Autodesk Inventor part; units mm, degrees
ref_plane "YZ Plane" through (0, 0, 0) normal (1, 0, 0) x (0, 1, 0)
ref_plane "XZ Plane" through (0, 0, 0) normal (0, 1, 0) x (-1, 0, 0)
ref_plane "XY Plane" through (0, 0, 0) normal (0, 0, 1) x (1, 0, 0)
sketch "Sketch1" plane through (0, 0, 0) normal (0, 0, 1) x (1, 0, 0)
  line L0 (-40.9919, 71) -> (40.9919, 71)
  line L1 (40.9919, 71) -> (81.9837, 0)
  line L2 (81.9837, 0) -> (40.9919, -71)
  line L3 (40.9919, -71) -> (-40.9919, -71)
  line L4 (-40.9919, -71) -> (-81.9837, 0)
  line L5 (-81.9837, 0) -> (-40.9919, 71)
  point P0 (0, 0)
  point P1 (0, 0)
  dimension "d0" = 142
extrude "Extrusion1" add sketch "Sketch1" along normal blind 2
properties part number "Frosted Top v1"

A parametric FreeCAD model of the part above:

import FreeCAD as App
import Part
import Sketcher
from FreeCAD import Vector
Q = App.Units.Quantity

doc = App.newDocument("Part")
params = doc.addObject("Spreadsheet::Sheet", "Params")
for row, (alias, value) in enumerate([
    ("pad1_length", "2 mm"),
], start=1):
    params.set(f"A{row}", alias)
    params.set(f"B{row}", "=" + value)
    params.setAlias(f"B{row}", alias)

body = doc.addObject("PartDesign::Body", "Body")

# Sketch on XY plane
sketch1 = doc.addObject("Sketcher::SketchObject", "Sketch")
body.addObject(sketch1)
sketch1.AttachmentSupport = (doc.XY_Plane, [""])
sketch1.MapMode = "FlatFace"
sketch1.addGeometry([
    Part.LineSegment(Vector(40.9919, 71, 0), Vector(-40.9919, 71, 0)),  # 0
    Part.LineSegment(Vector(-40.9919, 71, 0), Vector(-81.9837, 0, 0)),  # 1
    Part.LineSegment(Vector(-81.9837, 0, 0), Vector(-40.9919, -71, 0)),  # 2
    Part.LineSegment(Vector(-40.9919, -71, 0), Vector(40.9919, -71, 0)),  # 3
    Part.LineSegment(Vector(40.9919, -71, 0), Vector(81.9837, 0, 0)),  # 4
    Part.LineSegment(Vector(81.9837, 0, 0), Vector(40.9919, 71, 0)),  # 5
], False)
sketch1.addConstraint([
    Sketcher.Constraint("Coincident", 0, 2, 1, 1),
    Sketcher.Constraint("Coincident", 1, 2, 2, 1),
    Sketcher.Constraint("Coincident", 2, 2, 3, 1),
    Sketcher.Constraint("Coincident", 3, 2, 4, 1),
    Sketcher.Constraint("Coincident", 4, 2, 5, 1),
    Sketcher.Constraint("Coincident", 5, 2, 0, 1),
    Sketcher.Constraint("Horizontal", 0),
    Sketcher.Constraint("Horizontal", 3),
    Sketcher.Constraint("Symmetric", 0, 2, 3, 2, -1, 1),
    Sketcher.Constraint("Symmetric", 1, 2, 4, 2, -1, 1),
    Sketcher.Constraint("PointOnObject", 1, 2, -1),
    Sketcher.Constraint("Parallel", 2, 5),
    Sketcher.Constraint("Vertical", 0, 2, 2, 2),
    Sketcher.Constraint("DistanceY", 2, 2, 0, 2, 142.0),
    Sketcher.Constraint("Angle", 1, Q("-120 deg")),
    Sketcher.Constraint("DistanceX", 0, 2, 0, 1, 81.9838),
])
pad1 = doc.addObject("PartDesign::Pad", "Pad")
body.addObject(pad1)
pad1.Profile = sketch1
pad1.setExpression("Length", "Params.pad1_length")

doc.recompute()
